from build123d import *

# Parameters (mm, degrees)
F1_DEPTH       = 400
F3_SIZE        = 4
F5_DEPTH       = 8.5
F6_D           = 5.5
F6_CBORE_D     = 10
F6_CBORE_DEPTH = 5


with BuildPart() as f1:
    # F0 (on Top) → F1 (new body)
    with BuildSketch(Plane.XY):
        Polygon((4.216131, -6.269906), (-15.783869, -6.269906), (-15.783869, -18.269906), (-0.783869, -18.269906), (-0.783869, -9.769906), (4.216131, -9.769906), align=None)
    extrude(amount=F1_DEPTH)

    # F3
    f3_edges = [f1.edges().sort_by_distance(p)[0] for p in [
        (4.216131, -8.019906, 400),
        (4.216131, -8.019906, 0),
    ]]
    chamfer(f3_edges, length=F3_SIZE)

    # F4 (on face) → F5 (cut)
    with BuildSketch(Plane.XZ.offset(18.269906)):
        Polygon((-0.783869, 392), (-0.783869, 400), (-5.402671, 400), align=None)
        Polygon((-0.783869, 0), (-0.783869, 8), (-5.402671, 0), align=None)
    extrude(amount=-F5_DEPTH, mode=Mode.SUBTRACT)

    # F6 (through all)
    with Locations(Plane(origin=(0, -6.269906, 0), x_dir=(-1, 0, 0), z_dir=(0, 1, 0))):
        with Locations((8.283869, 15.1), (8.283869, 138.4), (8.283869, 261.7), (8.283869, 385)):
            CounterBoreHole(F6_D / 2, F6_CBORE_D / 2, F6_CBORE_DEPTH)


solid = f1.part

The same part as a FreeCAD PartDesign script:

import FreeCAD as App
import Part
import Sketcher
Q = App.Units.Quantity


def edges_at(feature, points):
    """Names of the edges that pass closest to the given points."""
    edges = feature.Shape.Edges
    near = lambda p: min(range(len(edges)), key=lambda i: edges[i].distToShape(Part.Vertex(*p))[0])
    return sorted({f"Edge{near(p) + 1}" for p in points})


def add_polygon(sketch, points):
    """Adds a closed chain of lines whose ends are joined by coincident constraints."""
    first, n = sketch.GeometryCount, len(points)
    for a, b in zip(points, points[1:] + points[:1]):
        sketch.addGeometry(Part.LineSegment(App.Vector(*a, 0), App.Vector(*b, 0)), False)
    for i in range(n):
        sketch.addConstraint(Sketcher.Constraint("Coincident", first + i, 2, first + (i + 1) % n, 1))

doc = App.newDocument("Part")
params = doc.addObject("Spreadsheet::Sheet", "Params")
for row, (alias, value) in enumerate([
    ("sketch1_width", "20 mm"),
    ("sketch1_width2", "15 mm"),
    ("sketch1_height", "12 mm"),
    ("sketch1_height2", "8.5 mm"),
    ("pad1_length", "400 mm"),
    ("chamfer_size", "4 mm"),
    ("sketch2_height", "8 mm"),
    ("pocket1_length", "8.5 mm"),
    ("sketch3_diameter", "5.5 mm"),
    ("hole_diameter", "5.5 mm"),
    ("hole_cbore_diameter", "10 mm"),
    ("hole_cbore_depth", "5 mm"),
], start=1):
    params.set(f"A{row}", alias)
    params.set(f"B{row}", "=" + value)
    params.setAlias(f"B{row}", alias)

body = doc.addObject("PartDesign::Body", "Body")

# Sketch on XY plane
sketch1 = body.newObject("Sketcher::SketchObject", "Sketch")
sketch1.AttachmentSupport = (doc.getObject("XY_Plane"), [""])
sketch1.MapMode = "FlatFace"
add_polygon(sketch1, [(4.2, -6.3), (-15.8, -6.3), (-15.8, -18.3), (-0.8, -18.3), (-0.8, -9.8), (4.2, -9.8)])  # lines 0-5
sketch1.addConstraint(Sketcher.Constraint("Horizontal", 0))
sketch1.addConstraint(Sketcher.Constraint("Vertical", 1))
sketch1.addConstraint(Sketcher.Constraint("Horizontal", 2))
sketch1.addConstraint(Sketcher.Constraint("Vertical", 3))
sketch1.addConstraint(Sketcher.Constraint("Horizontal", 4))
sketch1.addConstraint(Sketcher.Constraint("Vertical", 5))
sketch1.addConstraint(Sketcher.Constraint("DistanceX", 0, 2, 0, 1, 20.0))
sketch1.addConstraint(Sketcher.Constraint("DistanceX", 2, 1, 2, 2, 15.0))
sketch1.addConstraint(Sketcher.Constraint("DistanceY", 1, 2, 1, 1, 12.0))
sketch1.addConstraint(Sketcher.Constraint("DistanceY", 3, 1, 3, 2, 8.5))
sketch1.addConstraint(Sketcher.Constraint("DistanceX", 0, 2, -1, 1, 15.783869))
sketch1.addConstraint(Sketcher.Constraint("DistanceY", 0, 2, -1, 1, 6.269906))
sketch1.setExpression("Constraints[12]", "Params.sketch1_width")
sketch1.setExpression("Constraints[13]", "Params.sketch1_width2")
sketch1.setExpression("Constraints[14]", "Params.sketch1_height")
sketch1.setExpression("Constraints[15]", "Params.sketch1_height2")
pad1 = body.newObject("PartDesign::Pad", "Pad")
pad1.Profile = sketch1
pad1.setExpression("Length", "Params.pad1_length")
doc.recompute()

chamfer = body.newObject("PartDesign::Chamfer", "Chamfer")
chamfer.Base = (pad1, edges_at(pad1, [(4.216, -8.02, 400), (4.216, -8.02, 0)]))
chamfer.setExpression("Size", "Params.chamfer_size")

# Sketch on XZ plane
sketch2 = body.newObject("Sketcher::SketchObject", "Sketch001")
sketch2.AttachmentSupport = (doc.getObject("XZ_Plane"), [""])
sketch2.MapMode = "FlatFace"
sketch2.AttachmentOffset = App.Placement(App.Vector(0, 0, 18.269906), App.Rotation())
add_polygon(sketch2, [(-0.8, 392), (-0.8, 400), (-5.4, 400)])  # lines 0-2
add_polygon(sketch2, [(-0.8, 0), (-0.8, 8), (-5.4, 0)])  # lines 3-5
sketch2.addConstraint(Sketcher.Constraint("Vertical", 0))
sketch2.addConstraint(Sketcher.Constraint("Horizontal", 1))
sketch2.addConstraint(Sketcher.Constraint("Vertical", 3))
sketch2.addConstraint(Sketcher.Constraint("Horizontal", 5))
sketch2.addConstraint(Sketcher.Constraint("PointOnObject", 4, 2, -1))
sketch2.addConstraint(Sketcher.Constraint("Vertical", 2, 2, 3, 2))
sketch2.addConstraint(Sketcher.Constraint("Vertical", 1, 2, 4, 2))
sketch2.addConstraint(Sketcher.Constraint("Equal", 0, 3))
sketch2.addConstraint(Sketcher.Constraint("DistanceY", 0, 1, 0, 2, 8.0))
sketch2.addConstraint(Sketcher.Constraint("Angle", 2, Q("-60.000001 deg")))
sketch2.addConstraint(Sketcher.Constraint("DistanceY", -1, 1, 0, 2, 400.0))
sketch2.addConstraint(Sketcher.Constraint("DistanceX", 0, 2, -1, 1, 0.783869))
sketch2.setExpression("Constraints[14]", "Params.sketch2_height")
pocket1 = body.newObject("PartDesign::Pocket", "Pocket")
pocket1.Profile = sketch2
pocket1.setExpression("Length", "Params.pocket1_length")

# Sketch on XZ plane
sketch3 = body.newObject("Sketcher::SketchObject", "Sketch002")
sketch3.AttachmentSupport = (doc.getObject("XZ_Plane"), [""])
sketch3.MapMode = "FlatFace"
sketch3.AttachmentOffset = App.Placement(App.Vector(0, 0, 6.269906), App.Rotation())
sketch3.addGeometry(Part.Circle(App.Vector(-8.3, 15.1, 0), App.Vector(0, 0, 1), 2.8), False)
sketch3.addGeometry(Part.Circle(App.Vector(-8.3, 138.4, 0), App.Vector(0, 0, 1), 2.8), False)
sketch3.addGeometry(Part.Circle(App.Vector(-8.3, 261.7, 0), App.Vector(0, 0, 1), 2.8), False)
sketch3.addGeometry(Part.Circle(App.Vector(-8.3, 385, 0), App.Vector(0, 0, 1), 2.8), False)
sketch3.addConstraint(Sketcher.Constraint("Equal", 0, 1))
sketch3.addConstraint(Sketcher.Constraint("Equal", 1, 2))
sketch3.addConstraint(Sketcher.Constraint("Equal", 2, 3))
sketch3.addConstraint(Sketcher.Constraint("Vertical", 0, 3, 1, 3))
sketch3.addConstraint(Sketcher.Constraint("Vertical", 1, 3, 2, 3))
sketch3.addConstraint(Sketcher.Constraint("Vertical", 2, 3, 3, 3))
sketch3.addConstraint(Sketcher.Constraint("Diameter", 0, 5.5))
sketch3.addConstraint(Sketcher.Constraint("DistanceY", -1, 1, 3, 3, 385.0))
sketch3.addConstraint(Sketcher.Constraint("DistanceY", -1, 1, 0, 3, 15.1))
sketch3.addConstraint(Sketcher.Constraint("DistanceY", -1, 1, 1, 3, 138.4))
sketch3.addConstraint(Sketcher.Constraint("DistanceY", -1, 1, 2, 3, 261.7))
sketch3.addConstraint(Sketcher.Constraint("DistanceX", 0, 3, -1, 1, 8.283869))
sketch3.setExpression("Constraints[6]", "Params.sketch3_diameter")
doc.recompute()
hole = body.newObject("PartDesign::Hole", "Hole")
hole.Profile = sketch3
hole.ThreadType = "None"
hole.setExpression("Diameter", "Params.hole_diameter")
hole.DepthType = "ThroughAll"
hole.HoleCutType = "Counterbore"
hole.setExpression("HoleCutDiameter", "Params.hole_cbore_diameter")
hole.setExpression("HoleCutDepth", "Params.hole_cbore_depth")
hole.Reversed = True

doc.recompute()
